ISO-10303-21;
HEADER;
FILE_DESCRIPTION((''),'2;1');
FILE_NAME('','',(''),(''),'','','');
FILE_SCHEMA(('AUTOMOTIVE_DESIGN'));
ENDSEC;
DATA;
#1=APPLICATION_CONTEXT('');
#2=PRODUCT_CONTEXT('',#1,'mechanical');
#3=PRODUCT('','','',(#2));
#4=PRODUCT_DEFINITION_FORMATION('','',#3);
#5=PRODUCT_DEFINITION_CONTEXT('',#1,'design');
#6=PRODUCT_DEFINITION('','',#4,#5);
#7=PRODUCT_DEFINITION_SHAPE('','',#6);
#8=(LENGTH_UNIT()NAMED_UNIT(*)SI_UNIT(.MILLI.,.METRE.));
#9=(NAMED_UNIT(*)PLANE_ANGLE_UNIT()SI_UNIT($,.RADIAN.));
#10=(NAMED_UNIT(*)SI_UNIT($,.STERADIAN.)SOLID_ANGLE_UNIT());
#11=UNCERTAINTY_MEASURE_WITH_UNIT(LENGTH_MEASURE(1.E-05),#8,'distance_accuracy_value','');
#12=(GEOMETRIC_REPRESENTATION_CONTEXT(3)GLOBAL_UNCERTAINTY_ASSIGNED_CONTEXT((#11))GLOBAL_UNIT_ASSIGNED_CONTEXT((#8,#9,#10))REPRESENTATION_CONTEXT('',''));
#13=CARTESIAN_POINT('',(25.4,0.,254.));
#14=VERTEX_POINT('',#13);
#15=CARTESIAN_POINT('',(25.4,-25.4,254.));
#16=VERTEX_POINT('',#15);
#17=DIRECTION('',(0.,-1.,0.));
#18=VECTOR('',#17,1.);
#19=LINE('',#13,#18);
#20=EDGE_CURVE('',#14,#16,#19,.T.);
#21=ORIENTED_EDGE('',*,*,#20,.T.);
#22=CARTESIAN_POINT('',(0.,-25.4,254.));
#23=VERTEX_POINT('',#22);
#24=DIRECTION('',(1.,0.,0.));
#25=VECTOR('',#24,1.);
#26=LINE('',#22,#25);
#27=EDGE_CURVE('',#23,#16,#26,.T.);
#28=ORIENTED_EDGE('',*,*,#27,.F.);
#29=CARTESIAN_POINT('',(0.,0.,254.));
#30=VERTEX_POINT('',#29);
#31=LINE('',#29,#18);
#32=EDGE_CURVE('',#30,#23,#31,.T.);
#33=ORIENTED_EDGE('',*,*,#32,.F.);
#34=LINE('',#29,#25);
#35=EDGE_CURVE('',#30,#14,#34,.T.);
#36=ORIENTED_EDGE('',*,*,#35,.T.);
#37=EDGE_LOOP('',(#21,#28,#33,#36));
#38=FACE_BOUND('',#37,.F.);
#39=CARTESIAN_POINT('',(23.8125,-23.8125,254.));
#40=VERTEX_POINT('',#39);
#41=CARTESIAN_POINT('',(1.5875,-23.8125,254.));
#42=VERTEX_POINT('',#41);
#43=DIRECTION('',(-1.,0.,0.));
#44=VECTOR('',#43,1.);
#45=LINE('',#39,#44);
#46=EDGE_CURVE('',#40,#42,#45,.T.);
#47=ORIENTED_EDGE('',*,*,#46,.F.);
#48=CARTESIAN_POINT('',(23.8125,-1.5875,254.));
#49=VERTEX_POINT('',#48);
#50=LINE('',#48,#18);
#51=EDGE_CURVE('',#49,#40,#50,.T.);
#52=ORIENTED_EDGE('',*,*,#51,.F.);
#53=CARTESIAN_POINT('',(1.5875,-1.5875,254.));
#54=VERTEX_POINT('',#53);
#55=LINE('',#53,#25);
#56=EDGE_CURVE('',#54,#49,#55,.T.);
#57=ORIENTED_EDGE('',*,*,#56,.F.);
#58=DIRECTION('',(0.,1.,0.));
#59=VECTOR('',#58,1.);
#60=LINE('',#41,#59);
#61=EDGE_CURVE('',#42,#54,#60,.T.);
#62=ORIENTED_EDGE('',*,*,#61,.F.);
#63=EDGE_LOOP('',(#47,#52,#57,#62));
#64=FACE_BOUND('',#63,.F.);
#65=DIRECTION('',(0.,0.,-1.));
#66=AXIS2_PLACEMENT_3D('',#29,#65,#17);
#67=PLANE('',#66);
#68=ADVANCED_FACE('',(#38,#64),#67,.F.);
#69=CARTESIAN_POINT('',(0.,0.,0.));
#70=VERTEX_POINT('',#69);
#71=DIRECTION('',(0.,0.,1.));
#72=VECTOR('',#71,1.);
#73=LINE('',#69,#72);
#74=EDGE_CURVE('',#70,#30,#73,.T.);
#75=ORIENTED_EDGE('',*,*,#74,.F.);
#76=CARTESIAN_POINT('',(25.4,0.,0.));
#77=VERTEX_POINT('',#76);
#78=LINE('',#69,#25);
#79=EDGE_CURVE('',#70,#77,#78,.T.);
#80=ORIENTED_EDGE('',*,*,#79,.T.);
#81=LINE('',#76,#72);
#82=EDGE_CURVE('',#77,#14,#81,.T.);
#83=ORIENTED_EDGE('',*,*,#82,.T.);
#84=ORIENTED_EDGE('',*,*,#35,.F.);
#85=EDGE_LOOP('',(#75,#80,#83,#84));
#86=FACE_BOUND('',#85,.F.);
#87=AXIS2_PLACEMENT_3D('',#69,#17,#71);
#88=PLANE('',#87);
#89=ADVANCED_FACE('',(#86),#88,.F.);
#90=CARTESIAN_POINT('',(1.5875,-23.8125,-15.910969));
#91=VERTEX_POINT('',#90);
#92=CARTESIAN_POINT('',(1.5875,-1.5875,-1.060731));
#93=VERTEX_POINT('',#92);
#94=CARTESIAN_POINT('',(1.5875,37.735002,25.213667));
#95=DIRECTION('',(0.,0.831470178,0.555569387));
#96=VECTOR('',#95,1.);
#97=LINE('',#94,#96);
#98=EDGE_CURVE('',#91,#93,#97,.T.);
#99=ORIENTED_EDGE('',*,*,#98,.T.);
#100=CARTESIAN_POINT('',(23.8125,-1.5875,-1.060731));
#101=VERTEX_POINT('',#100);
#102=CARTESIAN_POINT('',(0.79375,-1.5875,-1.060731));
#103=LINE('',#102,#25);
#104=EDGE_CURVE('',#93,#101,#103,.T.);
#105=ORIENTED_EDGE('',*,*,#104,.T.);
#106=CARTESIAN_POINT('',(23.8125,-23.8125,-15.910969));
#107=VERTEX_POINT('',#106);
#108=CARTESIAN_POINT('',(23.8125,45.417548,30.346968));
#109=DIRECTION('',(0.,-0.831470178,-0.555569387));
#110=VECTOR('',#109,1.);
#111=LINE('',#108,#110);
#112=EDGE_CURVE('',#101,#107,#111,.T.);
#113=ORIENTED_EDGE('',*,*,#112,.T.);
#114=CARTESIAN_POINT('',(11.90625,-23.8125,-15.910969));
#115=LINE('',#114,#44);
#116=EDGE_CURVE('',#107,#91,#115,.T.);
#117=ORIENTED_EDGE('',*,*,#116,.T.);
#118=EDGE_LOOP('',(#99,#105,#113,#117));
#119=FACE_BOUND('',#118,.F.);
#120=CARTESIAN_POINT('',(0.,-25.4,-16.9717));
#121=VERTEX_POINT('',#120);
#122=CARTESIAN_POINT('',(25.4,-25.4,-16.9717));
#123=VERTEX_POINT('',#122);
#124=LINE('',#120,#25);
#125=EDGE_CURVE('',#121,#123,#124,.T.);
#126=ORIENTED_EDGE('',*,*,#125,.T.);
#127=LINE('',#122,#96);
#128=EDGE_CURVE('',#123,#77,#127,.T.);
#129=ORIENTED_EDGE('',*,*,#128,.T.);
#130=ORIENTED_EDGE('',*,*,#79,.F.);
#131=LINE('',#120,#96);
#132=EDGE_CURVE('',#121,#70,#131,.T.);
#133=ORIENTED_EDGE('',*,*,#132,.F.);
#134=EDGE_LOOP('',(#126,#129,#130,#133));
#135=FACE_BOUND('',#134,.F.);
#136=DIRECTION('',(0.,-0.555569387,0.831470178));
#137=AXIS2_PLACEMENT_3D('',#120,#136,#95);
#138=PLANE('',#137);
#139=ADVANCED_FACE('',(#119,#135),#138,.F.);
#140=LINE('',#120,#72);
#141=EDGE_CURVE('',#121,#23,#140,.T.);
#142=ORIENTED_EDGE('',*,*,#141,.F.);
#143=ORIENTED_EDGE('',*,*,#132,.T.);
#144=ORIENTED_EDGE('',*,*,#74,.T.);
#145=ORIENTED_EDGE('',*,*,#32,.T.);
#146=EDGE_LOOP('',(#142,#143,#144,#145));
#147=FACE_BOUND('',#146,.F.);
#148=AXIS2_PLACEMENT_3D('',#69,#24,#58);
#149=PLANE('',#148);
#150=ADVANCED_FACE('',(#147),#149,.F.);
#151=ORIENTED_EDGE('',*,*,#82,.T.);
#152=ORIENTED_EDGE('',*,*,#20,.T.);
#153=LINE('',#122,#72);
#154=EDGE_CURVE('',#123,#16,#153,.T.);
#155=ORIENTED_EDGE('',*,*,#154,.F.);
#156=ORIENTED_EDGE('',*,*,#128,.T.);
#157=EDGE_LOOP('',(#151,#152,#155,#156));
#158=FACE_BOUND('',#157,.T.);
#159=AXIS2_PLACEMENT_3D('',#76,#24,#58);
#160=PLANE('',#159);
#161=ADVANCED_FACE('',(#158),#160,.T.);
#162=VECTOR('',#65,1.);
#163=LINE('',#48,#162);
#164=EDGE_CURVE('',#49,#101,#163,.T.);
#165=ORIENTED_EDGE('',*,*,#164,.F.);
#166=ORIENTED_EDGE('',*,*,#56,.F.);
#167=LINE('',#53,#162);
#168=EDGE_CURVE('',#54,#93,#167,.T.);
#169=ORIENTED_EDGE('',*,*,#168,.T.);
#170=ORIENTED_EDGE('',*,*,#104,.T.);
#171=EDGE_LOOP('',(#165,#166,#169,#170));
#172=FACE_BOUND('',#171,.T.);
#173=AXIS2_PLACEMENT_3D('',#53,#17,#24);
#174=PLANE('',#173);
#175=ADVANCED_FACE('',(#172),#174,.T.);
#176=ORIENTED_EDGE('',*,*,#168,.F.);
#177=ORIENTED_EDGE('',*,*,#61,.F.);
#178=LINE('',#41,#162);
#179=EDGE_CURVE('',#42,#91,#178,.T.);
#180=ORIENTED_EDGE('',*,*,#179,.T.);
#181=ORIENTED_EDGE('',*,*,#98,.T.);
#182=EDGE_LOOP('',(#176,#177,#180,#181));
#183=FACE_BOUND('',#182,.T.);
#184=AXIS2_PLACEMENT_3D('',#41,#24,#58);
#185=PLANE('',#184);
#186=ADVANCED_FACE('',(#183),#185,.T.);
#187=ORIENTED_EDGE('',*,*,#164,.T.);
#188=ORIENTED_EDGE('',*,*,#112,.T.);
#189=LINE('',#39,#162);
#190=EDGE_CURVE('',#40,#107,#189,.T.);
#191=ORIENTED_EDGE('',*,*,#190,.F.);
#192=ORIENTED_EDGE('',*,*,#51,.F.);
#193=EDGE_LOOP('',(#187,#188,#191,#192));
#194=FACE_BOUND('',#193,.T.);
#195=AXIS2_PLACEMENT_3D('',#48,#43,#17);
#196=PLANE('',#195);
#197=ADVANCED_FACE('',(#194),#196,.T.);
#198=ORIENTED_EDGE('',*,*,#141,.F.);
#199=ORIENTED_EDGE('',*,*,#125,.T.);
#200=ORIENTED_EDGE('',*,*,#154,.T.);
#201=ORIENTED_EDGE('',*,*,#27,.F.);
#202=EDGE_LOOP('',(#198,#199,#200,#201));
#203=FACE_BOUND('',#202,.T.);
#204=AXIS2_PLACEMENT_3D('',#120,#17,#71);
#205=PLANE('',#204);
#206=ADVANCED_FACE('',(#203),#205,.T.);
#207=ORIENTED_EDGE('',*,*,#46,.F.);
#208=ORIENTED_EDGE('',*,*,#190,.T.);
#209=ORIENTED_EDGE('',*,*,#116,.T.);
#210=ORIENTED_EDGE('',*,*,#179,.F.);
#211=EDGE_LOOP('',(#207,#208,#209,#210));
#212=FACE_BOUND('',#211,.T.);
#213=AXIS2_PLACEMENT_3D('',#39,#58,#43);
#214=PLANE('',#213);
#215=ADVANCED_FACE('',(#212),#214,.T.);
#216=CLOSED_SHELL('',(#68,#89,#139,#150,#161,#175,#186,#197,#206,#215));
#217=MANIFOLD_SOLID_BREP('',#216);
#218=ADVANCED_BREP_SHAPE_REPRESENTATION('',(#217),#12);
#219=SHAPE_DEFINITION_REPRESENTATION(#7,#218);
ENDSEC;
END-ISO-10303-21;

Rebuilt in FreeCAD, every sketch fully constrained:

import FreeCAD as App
import Part
import Sketcher
from FreeCAD import Vector
Q = App.Units.Quantity


def add_polygon(sketch, points):
    """Adds a closed chain of lines whose ends are joined by coincident constraints."""
    first, n = sketch.GeometryCount, len(points)
    for a, b in zip(points, points[1:] + points[:1]):
        sketch.addGeometry(Part.LineSegment(App.Vector(*a, 0), App.Vector(*b, 0)), False)
    for i in range(n):
        sketch.addConstraint(Sketcher.Constraint("Coincident", first + i, 2, first + (i + 1) % n, 1))

doc = App.newDocument("Part")
body = doc.addObject("PartDesign::Body", "Body")

# Sketch on YZ plane
sketch1 = doc.addObject("Sketcher::SketchObject", "Sketch")
body.addObject(sketch1)
sketch1.AttachmentSupport = (doc.YZ_Plane, [""])
sketch1.MapMode = "FlatFace"
add_polygon(sketch1, [(-25, -17), (0, 0), (0, 254), (-25, 254)])  # lines 0-3
sketch1.addConstraint([
    Sketcher.Constraint("Vertical", 1),
    Sketcher.Constraint("Horizontal", 2),
    Sketcher.Constraint("Vertical", 3),
    Sketcher.Constraint("Coincident", 0, 2, -1, 1),
    Sketcher.Constraint("DistanceX", 2, 2, 2, 1, Q("1 in")),
    Sketcher.Constraint("DistanceY", 1, 1, 1, 2, Q("10 in")),
    Sketcher.Constraint("Angle", 0, Q("33.75 deg")),
])
pad1 = doc.addObject("PartDesign::Pad", "Pad")
body.addObject(pad1)
pad1.Profile = sketch1
pad1.Length = Q("1 in")

# Sketch on XY plane
sketch2 = doc.addObject("Sketcher::SketchObject", "Sketch001")
body.addObject(sketch2)
sketch2.AttachmentSupport = (doc.XY_Plane, [""])
sketch2.MapMode = "FlatFace"
sketch2.AttachmentOffset = App.Placement(Vector(0, 0, 10 * 25.4), App.Rotation())
add_polygon(sketch2, [(24, -2), (2, -2), (2, -24), (24, -24)])  # lines 0-3
sketch2.addConstraint([
    Sketcher.Constraint("Horizontal", 0),
    Sketcher.Constraint("Vertical", 1),
    Sketcher.Constraint("Horizontal", 2),
    Sketcher.Constraint("Vertical", 3),
    Sketcher.Constraint("Equal", 2, 1),
    Sketcher.Constraint("DistanceX", -1, 1, 0, 2, Q("0.0625 in")),
    Sketcher.Constraint("DistanceY", 0, 2, -1, 1, Q("0.0625 in")),
    Sketcher.Constraint("DistanceX", 0, 2, 0, 1, Q("0.875 in")),
])
pocket1 = doc.addObject("PartDesign::Pocket", "Pocket")
body.addObject(pocket1)
pocket1.Profile = sketch2
pocket1.Length = Q("20 in")

doc.recompute()
